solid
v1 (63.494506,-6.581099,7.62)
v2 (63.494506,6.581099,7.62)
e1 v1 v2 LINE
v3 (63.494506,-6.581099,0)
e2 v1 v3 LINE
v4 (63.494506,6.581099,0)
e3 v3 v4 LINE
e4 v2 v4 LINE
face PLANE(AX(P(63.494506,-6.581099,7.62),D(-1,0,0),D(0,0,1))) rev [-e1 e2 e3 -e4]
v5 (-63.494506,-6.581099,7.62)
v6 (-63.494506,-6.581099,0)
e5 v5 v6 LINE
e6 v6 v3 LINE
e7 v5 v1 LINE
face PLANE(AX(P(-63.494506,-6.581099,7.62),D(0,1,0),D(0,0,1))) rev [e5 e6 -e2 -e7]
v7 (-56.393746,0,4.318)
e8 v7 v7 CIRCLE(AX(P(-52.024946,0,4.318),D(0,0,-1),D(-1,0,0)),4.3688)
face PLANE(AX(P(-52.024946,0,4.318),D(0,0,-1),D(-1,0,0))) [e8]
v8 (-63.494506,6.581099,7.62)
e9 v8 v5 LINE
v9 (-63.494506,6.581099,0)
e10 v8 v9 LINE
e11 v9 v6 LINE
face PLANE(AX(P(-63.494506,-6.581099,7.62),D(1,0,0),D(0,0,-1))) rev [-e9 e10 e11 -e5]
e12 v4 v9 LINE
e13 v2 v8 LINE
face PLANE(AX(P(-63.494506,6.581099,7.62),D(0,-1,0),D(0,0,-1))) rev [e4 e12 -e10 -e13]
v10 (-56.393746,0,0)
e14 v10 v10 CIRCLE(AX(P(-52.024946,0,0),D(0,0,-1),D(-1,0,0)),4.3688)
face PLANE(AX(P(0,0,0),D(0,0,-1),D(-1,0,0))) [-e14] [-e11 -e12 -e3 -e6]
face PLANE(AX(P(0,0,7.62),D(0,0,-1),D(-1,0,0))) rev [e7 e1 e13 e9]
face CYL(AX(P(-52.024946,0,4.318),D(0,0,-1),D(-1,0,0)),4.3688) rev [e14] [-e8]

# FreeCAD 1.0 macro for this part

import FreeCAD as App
import Part
import Sketcher

V = App.Vector
Q = App.Units.Quantity


def add_polygon(sketch, points):
    """Adds a closed chain of lines whose ends are joined by coincident constraints."""
    first, n = sketch.GeometryCount, len(points)
    for a, b in zip(points, points[1:] + points[:1]):
        sketch.addGeometry(Part.LineSegment(App.Vector(*a, 0), App.Vector(*b, 0)), False)
    for i in range(n):
        sketch.addConstraint(Sketcher.Constraint("Coincident", first + i, 2, first + (i + 1) % n, 1))

doc = App.newDocument("Part")
params = doc.addObject("Spreadsheet::Sheet", "Params")
for row, (alias, value) in enumerate([
    ("pad1_length", "0.3 in"),
    ("sketch2_diameter", "0.344 in"),
    ("pocket1_length", "0.17 in"),
], start=1):
    params.set(f"A{row}", alias)
    params.set(f"B{row}", "=" + value)
    params.setAlias(f"B{row}", alias)

body = doc.addObject("PartDesign::Body", "Body")

# Sketch on XY plane
sketch1 = body.newObject("Sketcher::SketchObject", "Sketch")
sketch1.AttachmentSupport = (doc.getObject("XY_Plane"), [""])
sketch1.MapMode = "FlatFace"
add_polygon(sketch1, [(-63.494506, 6.581099), (-63.494506, -6.581099), (63.494506, -6.581099), (63.494506, 6.581099)])  # lines 0-3
sketch1.addConstraint([
    Sketcher.Constraint("Vertical", 0),
    Sketcher.Constraint("Horizontal", 1),
    Sketcher.Constraint("Vertical", 2),
    Sketcher.Constraint("Horizontal", 3),
    Sketcher.Constraint("Symmetric", 0, 2, 2, 2, -1, 1),
    Sketcher.Constraint("DistanceY", 0, 2, 0, 1, 13.162199),
    Sketcher.Constraint("DistanceX", 1, 1, 1, 2, 126.989012),
])
pad1 = body.newObject("PartDesign::Pad", "Pad")
pad1.Profile = sketch1
pad1.setExpression("Length", "Params.pad1_length")

# Sketch on XY plane
sketch2 = body.newObject("Sketcher::SketchObject", "Sketch001")
sketch2.AttachmentSupport = (doc.getObject("XY_Plane"), [""])
sketch2.MapMode = "FlatFace"
sketch2.addGeometry(Part.Circle(V(-52.024946, 0, 0), V(0, 0, 1), 4.3688), False)
sketch2.addConstraint([
    Sketcher.Constraint("PointOnObject", 0, 3, -1),
    Sketcher.Constraint("Diameter", 0, Q("0.344 in")),
    Sketcher.Constraint("DistanceX", 0, 3, -1, 1, 52.024946),
])
sketch2.setExpression("Constraints[1]", "Params.sketch2_diameter")
pocket1 = body.newObject("PartDesign::Pocket", "Pocket")
pocket1.Profile = sketch2
pocket1.setExpression("Length", "Params.pocket1_length")
pocket1.Reversed = True

doc.recompute()
